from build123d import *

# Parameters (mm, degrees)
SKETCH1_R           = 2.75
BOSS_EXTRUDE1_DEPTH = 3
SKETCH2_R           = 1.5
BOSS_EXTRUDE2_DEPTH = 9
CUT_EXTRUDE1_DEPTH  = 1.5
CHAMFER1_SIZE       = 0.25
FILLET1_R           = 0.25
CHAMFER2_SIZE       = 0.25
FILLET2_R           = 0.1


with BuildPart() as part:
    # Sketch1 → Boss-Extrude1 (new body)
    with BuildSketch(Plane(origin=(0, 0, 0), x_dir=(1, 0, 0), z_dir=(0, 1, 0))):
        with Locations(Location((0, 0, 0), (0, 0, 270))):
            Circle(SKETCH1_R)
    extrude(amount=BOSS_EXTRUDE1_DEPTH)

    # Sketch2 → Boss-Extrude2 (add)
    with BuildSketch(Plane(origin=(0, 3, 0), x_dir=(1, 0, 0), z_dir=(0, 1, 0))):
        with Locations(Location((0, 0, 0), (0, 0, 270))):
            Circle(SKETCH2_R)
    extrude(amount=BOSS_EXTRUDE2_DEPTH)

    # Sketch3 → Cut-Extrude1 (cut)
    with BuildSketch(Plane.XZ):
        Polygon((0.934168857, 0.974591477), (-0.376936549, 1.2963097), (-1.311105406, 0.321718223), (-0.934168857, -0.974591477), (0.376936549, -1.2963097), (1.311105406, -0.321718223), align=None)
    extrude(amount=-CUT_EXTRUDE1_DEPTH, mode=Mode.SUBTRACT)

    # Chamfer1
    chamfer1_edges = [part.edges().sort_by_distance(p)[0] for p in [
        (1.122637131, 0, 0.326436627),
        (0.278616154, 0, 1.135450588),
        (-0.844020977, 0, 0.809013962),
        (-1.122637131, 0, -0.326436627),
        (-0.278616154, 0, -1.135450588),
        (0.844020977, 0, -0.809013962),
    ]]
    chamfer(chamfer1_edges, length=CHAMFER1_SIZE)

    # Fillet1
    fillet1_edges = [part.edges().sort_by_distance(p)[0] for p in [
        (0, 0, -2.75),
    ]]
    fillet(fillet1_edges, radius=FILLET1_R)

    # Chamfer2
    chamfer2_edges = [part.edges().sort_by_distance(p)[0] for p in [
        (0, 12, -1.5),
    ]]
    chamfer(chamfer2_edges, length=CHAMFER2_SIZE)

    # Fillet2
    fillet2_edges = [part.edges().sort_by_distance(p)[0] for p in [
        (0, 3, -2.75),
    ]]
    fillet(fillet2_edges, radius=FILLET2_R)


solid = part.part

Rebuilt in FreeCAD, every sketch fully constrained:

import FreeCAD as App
import Part
import Sketcher

V = App.Vector


def edges_at(feature, points):
    """Names of the edges that pass closest to the given points."""
    edges = feature.Shape.Edges
    near = lambda p: min(range(len(edges)), key=lambda i: edges[i].distToShape(Part.Vertex(*p))[0])
    return sorted({f"Edge{near(p) + 1}" for p in points})


def add_polygon(sketch, points):
    """Adds a closed chain of lines whose ends are joined by coincident constraints."""
    first, n = sketch.GeometryCount, len(points)
    for a, b in zip(points, points[1:] + points[:1]):
        sketch.addGeometry(Part.LineSegment(App.Vector(*a, 0), App.Vector(*b, 0)), False)
    for i in range(n):
        sketch.addConstraint(Sketcher.Constraint("Coincident", first + i, 2, first + (i + 1) % n, 1))

doc = App.newDocument("Part")
body = doc.addObject("PartDesign::Body", "Body")

sketch1 = body.newObject("Sketcher::SketchObject", "Sketch")
sketch1.AttachmentSupport = (doc.getObject("XZ_Plane"), [""])
sketch1.MapMode = "FlatFace"
sketch1.addGeometry(Part.Circle(V(0, 0, 0), V(0, 0, 1), 2.8), False)
sketch1.addConstraint([
    Sketcher.Constraint("Coincident", 0, 3, -1, 1),
    Sketcher.Constraint("Diameter", 0, 5.5),
])
pad1 = body.newObject("PartDesign::Pad", "Pad")
pad1.Profile = sketch1
pad1.Length = 3
pad1.Reversed = True

sketch2 = body.newObject("Sketcher::SketchObject", "Sketch001")
sketch2.AttachmentSupport = (doc.getObject("XZ_Plane"), [""])
sketch2.MapMode = "FlatFace"
sketch2.AttachmentOffset = App.Placement(V(0, 0, -3), App.Rotation())
sketch2.addGeometry(Part.Circle(V(0, 0, 0), V(0, 0, 1), 1.5), False)
sketch2.addConstraint([
    Sketcher.Constraint("Coincident", 0, 3, -1, 1),
    Sketcher.Constraint("Diameter", 0, 3.0),
])
pad2 = body.newObject("PartDesign::Pad", "Pad001")
pad2.Profile = sketch2
pad2.Length = 9
pad2.Reversed = True

sketch3 = body.newObject("Sketcher::SketchObject", "Sketch002")
sketch3.AttachmentSupport = (doc.getObject("XZ_Plane"), [""])
sketch3.MapMode = "FlatFace"
add_polygon(sketch3, [(0.9, 1), (-0.4, 1.3), (-1.3, 0.3), (-0.9, -1), (0.4, -1.3), (1.3, -0.3)])
sketch3.addConstraint([
    Sketcher.Constraint("Symmetric", 0, 2, 3, 2, -1, 1),
    Sketcher.Constraint("Symmetric", 1, 2, 4, 2, -1, 1),
    Sketcher.Constraint("Symmetric", 2, 2, 5, 2, -1, 1),
    Sketcher.Constraint("Equal", 0, 1),
    Sketcher.Constraint("Equal", 1, 2),
    Sketcher.Constraint("Distance", 0, 1.35),
    Sketcher.Constraint("DistanceY", 2, 2, 0, 2, 2.270901),
    Sketcher.Constraint("DistanceY", -1, 1, 0, 2, 1.29631),
    Sketcher.Constraint("DistanceY", -1, 1, 1, 2, 0.321718),
])
pocket1 = body.newObject("PartDesign::Pocket", "Pocket")
pocket1.Profile = sketch3
pocket1.Length = 1.5
doc.recompute()

chamfer = body.newObject("PartDesign::Chamfer", "Chamfer")
chamfer.Base = (pocket1, edges_at(pocket1, [
    (1.123, 0, 0.326),
    (0.279, 0, 1.135),
    (-0.844, 0, 0.809),
    (-1.123, 0, -0.326),
    (-0.279, 0, -1.135),
    (0.844, 0, -0.809),
]))
chamfer.Size = 0.25
doc.recompute()

fillet = body.newObject("PartDesign::Fillet", "Fillet")
fillet.Base = (chamfer, edges_at(chamfer, [(0, 0, -2.75)]))
fillet.Radius = 0.25
doc.recompute()

chamfer2 = body.newObject("PartDesign::Chamfer", "Chamfer001")
chamfer2.Base = (fillet, edges_at(fillet, [(0, 12, -1.5)]))
chamfer2.Size = 0.25
doc.recompute()

fillet2 = body.newObject("PartDesign::Fillet", "Fillet001")
fillet2.Base = (chamfer2, edges_at(chamfer2, [(0, 3, -2.75)]))
fillet2.Radius = 0.1

doc.recompute()
